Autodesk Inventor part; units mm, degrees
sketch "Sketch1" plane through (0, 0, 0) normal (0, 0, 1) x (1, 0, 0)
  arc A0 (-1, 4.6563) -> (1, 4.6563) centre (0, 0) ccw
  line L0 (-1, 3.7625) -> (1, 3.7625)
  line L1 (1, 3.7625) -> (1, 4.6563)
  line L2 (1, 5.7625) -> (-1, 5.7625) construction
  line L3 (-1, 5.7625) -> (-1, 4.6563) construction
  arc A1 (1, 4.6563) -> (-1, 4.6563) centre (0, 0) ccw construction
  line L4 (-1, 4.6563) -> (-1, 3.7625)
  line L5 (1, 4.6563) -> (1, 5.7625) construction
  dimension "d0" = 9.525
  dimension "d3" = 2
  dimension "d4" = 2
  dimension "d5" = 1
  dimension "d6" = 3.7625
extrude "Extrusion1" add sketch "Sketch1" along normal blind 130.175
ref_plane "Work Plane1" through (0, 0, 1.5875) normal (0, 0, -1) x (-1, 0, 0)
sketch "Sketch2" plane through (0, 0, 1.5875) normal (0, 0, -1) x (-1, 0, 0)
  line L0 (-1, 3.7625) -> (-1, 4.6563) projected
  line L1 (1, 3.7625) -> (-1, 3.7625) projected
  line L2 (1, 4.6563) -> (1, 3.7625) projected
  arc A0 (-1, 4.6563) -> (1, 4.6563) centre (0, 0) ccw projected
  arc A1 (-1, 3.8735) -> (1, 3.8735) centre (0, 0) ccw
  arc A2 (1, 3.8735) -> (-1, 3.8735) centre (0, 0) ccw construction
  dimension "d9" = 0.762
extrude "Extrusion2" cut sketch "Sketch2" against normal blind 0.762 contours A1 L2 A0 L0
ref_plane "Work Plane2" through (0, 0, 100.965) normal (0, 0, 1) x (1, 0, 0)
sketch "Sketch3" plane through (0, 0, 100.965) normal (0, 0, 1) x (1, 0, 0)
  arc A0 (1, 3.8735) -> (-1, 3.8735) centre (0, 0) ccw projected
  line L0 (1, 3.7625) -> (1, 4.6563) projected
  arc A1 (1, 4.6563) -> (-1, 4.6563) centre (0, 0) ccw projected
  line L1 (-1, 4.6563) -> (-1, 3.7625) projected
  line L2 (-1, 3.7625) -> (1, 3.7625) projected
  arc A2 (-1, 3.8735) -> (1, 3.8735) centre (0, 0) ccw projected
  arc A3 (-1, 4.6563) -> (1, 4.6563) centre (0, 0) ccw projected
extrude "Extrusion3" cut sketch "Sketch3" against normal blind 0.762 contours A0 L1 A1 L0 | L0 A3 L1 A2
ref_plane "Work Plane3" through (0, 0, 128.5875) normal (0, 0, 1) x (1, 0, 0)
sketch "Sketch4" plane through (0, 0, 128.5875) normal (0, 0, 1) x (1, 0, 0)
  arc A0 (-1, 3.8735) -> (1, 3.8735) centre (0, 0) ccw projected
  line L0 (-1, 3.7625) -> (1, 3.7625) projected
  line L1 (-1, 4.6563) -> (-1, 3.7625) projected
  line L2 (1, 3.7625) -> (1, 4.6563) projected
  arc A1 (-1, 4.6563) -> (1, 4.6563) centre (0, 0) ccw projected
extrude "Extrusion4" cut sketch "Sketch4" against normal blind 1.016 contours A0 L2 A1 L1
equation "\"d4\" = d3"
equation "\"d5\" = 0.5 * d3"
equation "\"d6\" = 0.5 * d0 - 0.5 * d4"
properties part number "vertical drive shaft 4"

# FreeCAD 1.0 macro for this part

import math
import FreeCAD as App
import Part
import Sketcher

V = App.Vector
Q = App.Units.Quantity

doc = App.newDocument("Part")
body = doc.addObject("PartDesign::Body", "Body")

# Sketch on XY plane
sketch1 = body.newObject("Sketcher::SketchObject", "Sketch")
sketch1.AttachmentSupport = (doc.getObject("XY_Plane"), [""])
sketch1.MapMode = "FlatFace"
sketch1.addGeometry([
    Part.LineSegment(V(-1, 3.8, 0), V(-1, 4.7, 0)),
    Part.ArcOfCircle(Part.Circle(V(0, 0, 0), V(0, 0, 1), 4.8), math.radians(102), math.radians(438)),
    Part.LineSegment(V(1, 4.7, 0), V(1, 3.8, 0)),
    Part.LineSegment(V(1, 3.8, 0), V(-1, 3.8, 0)),
], False)
sketch1.addConstraint([
    Sketcher.Constraint("Coincident", 0, 2, 1, 1),
    Sketcher.Constraint("Coincident", 1, 2, 2, 1),
    Sketcher.Constraint("Coincident", 2, 2, 3, 1),
    Sketcher.Constraint("Coincident", 3, 2, 0, 1),
    Sketcher.Constraint("Vertical", 0),
    Sketcher.Constraint("Vertical", 2),
    Sketcher.Constraint("Horizontal", 3),
    Sketcher.Constraint("Coincident", 1, 3, -1, 1),
    Sketcher.Constraint("Horizontal", 0, 2, 1, 2),
    Sketcher.Constraint("Radius", 1, Q("0.1875 in")),
    Sketcher.Constraint("DistanceX", 3, 2, 3, 1, Q("2 mm")),
    Sketcher.Constraint("DistanceY", -1, 1, 2, 2, Q("3.7625 mm")),
])
pad1 = body.newObject("PartDesign::Pad", "Pad")
pad1.Profile = sketch1
pad1.Length = Q("5.125 in")

# Sketch on XY plane
sketch2 = body.newObject("Sketcher::SketchObject", "Sketch001")
sketch2.AttachmentSupport = (doc.getObject("XY_Plane"), [""])
sketch2.MapMode = "FlatFace"
sketch2.AttachmentOffset = App.Placement(V(0, 0, 0.0625 * 25.4), App.Rotation())
sketch2.addGeometry([
    Part.ArcOfCircle(Part.Circle(V(0, 0, 0), V(0, 0, 1), 4), math.radians(104), math.radians(436)),
    Part.LineSegment(V(1, 3.9, 0), V(1, 4.7, 0)),
    Part.ArcOfCircle(Part.Circle(V(0, 0, 0), V(0, 0, 1), 4.8), math.radians(102), math.radians(438)),
    Part.LineSegment(V(-1, 4.7, 0), V(-1, 3.9, 0)),
], False)
sketch2.addConstraint([
    Sketcher.Constraint("Coincident", 0, 2, 1, 1),
    Sketcher.Constraint("Coincident", 1, 2, 2, 2),
    Sketcher.Constraint("Coincident", 2, 1, 3, 1),
    Sketcher.Constraint("Coincident", 3, 2, 0, 1),
    Sketcher.Constraint("Vertical", 1),
    Sketcher.Constraint("Vertical", 3),
    Sketcher.Constraint("Coincident", 0, 3, -1, 1),
    Sketcher.Constraint("Coincident", 2, 3, -1, 1),
    Sketcher.Constraint("Horizontal", 1, 2, 2, 1),
    Sketcher.Constraint("Radius", 2, Q("0.1875 in")),
    Sketcher.Constraint("Radius", 0, Q("0.1575 in")),
    Sketcher.Constraint("DistanceY", 1, 1, 1, 2, Q("0.7828 mm")),
])
pocket1 = body.newObject("PartDesign::Pocket", "Pocket")
pocket1.Profile = sketch2
pocket1.Length = Q("0.03 in")
pocket1.Reversed = True

# Sketch on XY plane
sketch3 = body.newObject("Sketcher::SketchObject", "Sketch002")
sketch3.AttachmentSupport = (doc.getObject("XY_Plane"), [""])
sketch3.MapMode = "FlatFace"
sketch3.AttachmentOffset = App.Placement(V(0, 0, 3.975 * 25.4), App.Rotation())
sketch3.addGeometry([
    Part.Circle(V(0, 0, 0), V(0, 0, 1), 4.8),
    Part.Circle(V(0, 0, 0), V(0, 0, 1), 4),
], False)
sketch3.addConstraint([
    Sketcher.Constraint("Coincident", 0, 3, -1, 1),
    Sketcher.Constraint("Coincident", 1, 3, -1, 1),
    Sketcher.Constraint("Diameter", 0, Q("0.375 in")),
    Sketcher.Constraint("Diameter", 1, Q("0.315 in")),
])
pocket2 = body.newObject("PartDesign::Pocket", "Pocket001")
pocket2.Profile = sketch3
pocket2.Length = Q("0.03 in")

# Sketch on XY plane
sketch4 = body.newObject("Sketcher::SketchObject", "Sketch003")
sketch4.AttachmentSupport = (doc.getObject("XY_Plane"), [""])
sketch4.MapMode = "FlatFace"
sketch4.AttachmentOffset = App.Placement(V(0, 0, 5.0625 * 25.4), App.Rotation())
sketch4.addGeometry([
    Part.ArcOfCircle(Part.Circle(V(0, 0, 0), V(0, 0, 1), 4), math.radians(104), math.radians(436)),
    Part.LineSegment(V(-1, 3.9, 0), V(-1, 4.7, 0)),
    Part.ArcOfCircle(Part.Circle(V(0, 0, 0), V(0, 0, 1), 4.8), math.radians(102), math.radians(438)),
    Part.LineSegment(V(1, 4.7, 0), V(1, 3.9, 0)),
], False)
sketch4.addConstraint([
    Sketcher.Constraint("Coincident", 0, 1, 1, 1),
    Sketcher.Constraint("Coincident", 1, 2, 2, 1),
    Sketcher.Constraint("Coincident", 2, 2, 3, 1),
    Sketcher.Constraint("Coincident", 3, 2, 0, 2),
    Sketcher.Constraint("Vertical", 1),
    Sketcher.Constraint("Vertical", 3),
    Sketcher.Constraint("Coincident", 0, 3, -1, 1),
    Sketcher.Constraint("Coincident", 2, 3, -1, 1),
    Sketcher.Constraint("Horizontal", 1, 2, 2, 2),
    Sketcher.Constraint("Radius", 2, Q("0.1875 in")),
    Sketcher.Constraint("Radius", 0, Q("0.1575 in")),
    Sketcher.Constraint("DistanceY", 1, 1, 1, 2, Q("0.7828 mm")),
])
pocket3 = body.newObject("PartDesign::Pocket", "Pocket002")
pocket3.Profile = sketch4
pocket3.Length = Q("0.04 in")

doc.recompute()
